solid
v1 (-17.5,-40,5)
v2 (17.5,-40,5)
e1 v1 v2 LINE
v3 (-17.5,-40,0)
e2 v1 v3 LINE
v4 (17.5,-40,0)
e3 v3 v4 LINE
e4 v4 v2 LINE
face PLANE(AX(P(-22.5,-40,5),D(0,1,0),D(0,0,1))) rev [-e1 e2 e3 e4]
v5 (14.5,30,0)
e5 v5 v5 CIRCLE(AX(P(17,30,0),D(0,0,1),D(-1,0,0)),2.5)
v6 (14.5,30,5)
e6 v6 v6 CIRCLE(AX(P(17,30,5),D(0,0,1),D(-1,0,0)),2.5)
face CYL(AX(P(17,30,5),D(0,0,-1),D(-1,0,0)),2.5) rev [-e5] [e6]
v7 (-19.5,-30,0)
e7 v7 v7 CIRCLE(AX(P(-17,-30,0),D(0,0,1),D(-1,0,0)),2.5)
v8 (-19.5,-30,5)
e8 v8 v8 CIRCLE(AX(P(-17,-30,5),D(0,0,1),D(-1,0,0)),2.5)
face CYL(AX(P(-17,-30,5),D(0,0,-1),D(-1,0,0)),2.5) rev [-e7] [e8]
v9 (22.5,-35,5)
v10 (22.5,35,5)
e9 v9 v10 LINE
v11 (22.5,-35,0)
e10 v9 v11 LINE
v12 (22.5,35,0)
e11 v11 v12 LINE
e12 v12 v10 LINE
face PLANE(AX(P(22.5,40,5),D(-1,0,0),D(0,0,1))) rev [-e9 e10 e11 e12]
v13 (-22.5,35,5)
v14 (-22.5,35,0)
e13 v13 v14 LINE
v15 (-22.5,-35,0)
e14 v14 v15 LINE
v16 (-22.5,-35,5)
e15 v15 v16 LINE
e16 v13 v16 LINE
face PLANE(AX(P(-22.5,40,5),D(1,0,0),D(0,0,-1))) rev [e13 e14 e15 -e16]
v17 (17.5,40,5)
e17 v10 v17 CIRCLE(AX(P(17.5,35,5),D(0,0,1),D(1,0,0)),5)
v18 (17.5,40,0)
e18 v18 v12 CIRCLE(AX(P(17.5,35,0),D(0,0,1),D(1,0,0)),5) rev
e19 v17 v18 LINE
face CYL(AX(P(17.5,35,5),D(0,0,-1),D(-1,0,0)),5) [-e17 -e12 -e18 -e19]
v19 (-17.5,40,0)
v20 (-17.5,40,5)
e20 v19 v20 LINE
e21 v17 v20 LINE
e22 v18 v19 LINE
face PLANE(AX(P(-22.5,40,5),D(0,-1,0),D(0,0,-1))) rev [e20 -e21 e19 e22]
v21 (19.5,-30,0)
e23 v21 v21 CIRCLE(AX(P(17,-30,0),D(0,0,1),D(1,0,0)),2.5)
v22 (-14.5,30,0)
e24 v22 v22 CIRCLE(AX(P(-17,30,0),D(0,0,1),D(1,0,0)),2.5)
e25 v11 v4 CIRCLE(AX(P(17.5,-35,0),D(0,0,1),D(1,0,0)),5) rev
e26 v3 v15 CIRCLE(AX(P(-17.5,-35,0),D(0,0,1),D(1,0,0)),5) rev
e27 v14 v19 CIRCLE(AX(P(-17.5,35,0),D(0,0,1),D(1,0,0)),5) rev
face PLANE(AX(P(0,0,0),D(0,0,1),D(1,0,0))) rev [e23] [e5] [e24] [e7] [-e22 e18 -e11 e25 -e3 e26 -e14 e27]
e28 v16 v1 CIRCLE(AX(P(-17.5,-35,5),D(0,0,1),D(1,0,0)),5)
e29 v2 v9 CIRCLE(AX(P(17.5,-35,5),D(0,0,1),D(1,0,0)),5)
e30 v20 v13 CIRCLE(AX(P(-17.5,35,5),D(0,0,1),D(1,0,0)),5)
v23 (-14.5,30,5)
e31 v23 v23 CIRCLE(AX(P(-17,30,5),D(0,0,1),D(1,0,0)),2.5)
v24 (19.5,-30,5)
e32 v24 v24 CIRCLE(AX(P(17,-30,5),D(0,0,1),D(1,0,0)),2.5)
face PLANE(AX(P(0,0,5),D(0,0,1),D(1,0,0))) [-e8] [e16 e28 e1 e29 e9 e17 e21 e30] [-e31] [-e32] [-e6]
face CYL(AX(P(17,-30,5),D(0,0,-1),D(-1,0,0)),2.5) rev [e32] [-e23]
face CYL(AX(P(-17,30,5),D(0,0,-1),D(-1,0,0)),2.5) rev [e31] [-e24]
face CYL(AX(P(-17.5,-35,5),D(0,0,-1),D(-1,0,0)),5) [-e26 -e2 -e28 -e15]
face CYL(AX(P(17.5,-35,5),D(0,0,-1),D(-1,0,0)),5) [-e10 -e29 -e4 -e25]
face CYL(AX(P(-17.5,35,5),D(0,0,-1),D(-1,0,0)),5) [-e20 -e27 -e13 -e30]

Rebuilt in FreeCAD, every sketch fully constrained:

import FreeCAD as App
import Part
import Sketcher
from FreeCAD import Vector
Q = App.Units.Quantity


def edges_at(feature, points):
    """Names of the edges that pass closest to the given points."""
    edges = feature.Shape.Edges
    near = lambda p: min(range(len(edges)), key=lambda i: edges[i].distToShape(Part.Vertex(*p))[0])
    return sorted({f"Edge{near(p) + 1}" for p in points})

doc = App.newDocument("Part")
params = doc.addObject("Spreadsheet::Sheet", "Params")
for row, (alias, value) in enumerate([
    ("sketch1_diameter", "5 mm"),
    ("sketch1_width", "45 mm"),
    ("sketch1_height", "80 mm"),
    ("pad1_length", "5 mm"),
    ("fillet_radius", "5 mm"),
], start=1):
    params.set(f"A{row}", alias)
    params.set(f"B{row}", "=" + value)
    params.setAlias(f"B{row}", alias)

body = doc.addObject("PartDesign::Body", "Body")

sketch1 = body.newObject("Sketcher::SketchObject", "Sketch")
sketch1.AttachmentSupport = (doc.getObject("XY_Plane"), [""])
sketch1.MapMode = "FlatFace"
sketch1.addGeometry([
    Part.LineSegment(Vector(-22.5, 40, 0), Vector(-22.5, -40, 0)),
    Part.LineSegment(Vector(-22.5, -40, 0), Vector(22.5, -40, 0)),
    Part.LineSegment(Vector(22.5, -40, 0), Vector(22.5, 40, 0)),
    Part.LineSegment(Vector(22.5, 40, 0), Vector(-22.5, 40, 0)),
    Part.Circle(Vector(-17, -30, 0), Vector(0, 0, 1), 2.5),
    Part.Circle(Vector(17, -30, 0), Vector(0, 0, 1), 2.5),
    Part.Circle(Vector(-17, 30, 0), Vector(0, 0, 1), 2.5),
    Part.Circle(Vector(17, 30, 0), Vector(0, 0, 1), 2.5),
], False)
sketch1.addConstraint([
    Sketcher.Constraint("Coincident", 0, 2, 1, 1),
    Sketcher.Constraint("Coincident", 1, 2, 2, 1),
    Sketcher.Constraint("Coincident", 2, 2, 3, 1),
    Sketcher.Constraint("Coincident", 3, 2, 0, 1),
    Sketcher.Constraint("Vertical", 0),
    Sketcher.Constraint("Horizontal", 1),
    Sketcher.Constraint("Vertical", 2),
    Sketcher.Constraint("Horizontal", 3),
    Sketcher.Constraint("Equal", 4, 5),
    Sketcher.Constraint("Equal", 5, 6),
    Sketcher.Constraint("Equal", 6, 7),
    Sketcher.Constraint("Symmetric", 5, 3, 6, 3, -1, 1),
    Sketcher.Constraint("Symmetric", 4, 3, 7, 3, -1, 1),
    Sketcher.Constraint("Symmetric", 0, 2, 2, 2, -1, 1),
    Sketcher.Constraint("Symmetric", 4, 3, 5, 3, -2),
    Sketcher.Constraint("Diameter", 4, Q("5 mm")),
    Sketcher.Constraint("DistanceX", 1, 1, 1, 2, Q("45 mm")),
    Sketcher.Constraint("DistanceY", 0, 2, 0, 1, Q("80 mm")),
    Sketcher.Constraint("DistanceX", 4, 3, -1, 1, Q("17 mm")),
    Sketcher.Constraint("DistanceY", 4, 3, -1, 1, Q("30 mm")),
])
sketch1.setExpression("Constraints[15]", "Params.sketch1_diameter")
sketch1.setExpression("Constraints[16]", "Params.sketch1_width")
sketch1.setExpression("Constraints[17]", "Params.sketch1_height")
pad1 = body.newObject("PartDesign::Pad", "Pad")
pad1.Profile = sketch1
pad1.setExpression("Length", "Params.pad1_length")
doc.recompute()

fillet = body.newObject("PartDesign::Fillet", "Fillet")
fillet.Base = (pad1, edges_at(pad1, [
    (22.5, -40, 2.5),
    (-22.5, -40, 2.5),
    (-22.5, 40, 2.5),
    (22.5, 40, 2.5),
]))
fillet.setExpression("Radius", "Params.fillet_radius")

doc.recompute()
